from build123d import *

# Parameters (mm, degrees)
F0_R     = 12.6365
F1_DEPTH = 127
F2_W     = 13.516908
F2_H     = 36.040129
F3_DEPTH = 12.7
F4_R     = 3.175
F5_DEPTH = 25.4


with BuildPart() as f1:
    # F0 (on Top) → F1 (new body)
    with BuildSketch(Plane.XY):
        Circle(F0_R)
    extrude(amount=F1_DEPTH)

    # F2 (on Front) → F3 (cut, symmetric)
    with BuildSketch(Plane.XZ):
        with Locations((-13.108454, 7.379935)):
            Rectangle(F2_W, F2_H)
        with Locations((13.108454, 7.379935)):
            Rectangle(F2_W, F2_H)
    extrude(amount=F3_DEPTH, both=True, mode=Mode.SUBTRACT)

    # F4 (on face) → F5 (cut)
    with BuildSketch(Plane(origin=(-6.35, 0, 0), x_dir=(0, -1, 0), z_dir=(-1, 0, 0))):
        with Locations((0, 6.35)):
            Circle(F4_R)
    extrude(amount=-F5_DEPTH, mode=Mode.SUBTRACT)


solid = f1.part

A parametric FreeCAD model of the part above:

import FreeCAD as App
import Part
import Sketcher
Q = App.Units.Quantity

doc = App.newDocument("Part")
params = doc.addObject("Spreadsheet::Sheet", "Params")
for row, (alias, value) in enumerate([
    ("sketch1_diameter", "0.995 in"),
    ("pad1_length", "5 in"),
    ("pocket1_length", "1 in"),
    ("sketch3_diameter", "0.25 in"),
    ("pocket2_length", "1 in"),
], start=1):
    params.set(f"A{row}", alias)
    params.set(f"B{row}", "=" + value)
    params.setAlias(f"B{row}", alias)

body = doc.addObject("PartDesign::Body", "Body")

# Sketch on XY plane
sketch1 = body.newObject("Sketcher::SketchObject", "Sketch")
sketch1.AttachmentSupport = (doc.getObject("XY_Plane"), [""])
sketch1.MapMode = "FlatFace"
sketch1.addGeometry(Part.Circle(App.Vector(0, 0, 0), App.Vector(0, 0, 1), 13), False)
sketch1.addConstraint(Sketcher.Constraint("Coincident", 0, 3, -1, 1))
sketch1.addConstraint(Sketcher.Constraint("Diameter", 0, Q("0.995 in")))
sketch1.setExpression("Constraints[1]", "Params.sketch1_diameter")
pad1 = body.newObject("PartDesign::Pad", "Pad")
pad1.Profile = sketch1
pad1.setExpression("Length", "Params.pad1_length")

# Sketch on XZ plane
sketch2 = body.newObject("Sketcher::SketchObject", "Sketch001")
sketch2.AttachmentSupport = (doc.getObject("XZ_Plane"), [""])
sketch2.MapMode = "FlatFace"
sketch2.addGeometry(Part.LineSegment(App.Vector(-20, 25, 0), App.Vector(-20, -11, 0)), False)
sketch2.addGeometry(Part.LineSegment(App.Vector(-20, -11, 0), App.Vector(-6, -11, 0)), False)
sketch2.addGeometry(Part.LineSegment(App.Vector(-6, -11, 0), App.Vector(-6, 25, 0)), False)
sketch2.addGeometry(Part.LineSegment(App.Vector(-6, 25, 0), App.Vector(-20, 25, 0)), False)
sketch2.addGeometry(Part.LineSegment(App.Vector(6, 25, 0), App.Vector(6, -11, 0)), False)
sketch2.addGeometry(Part.LineSegment(App.Vector(6, -11, 0), App.Vector(20, -11, 0)), False)
sketch2.addGeometry(Part.LineSegment(App.Vector(20, -11, 0), App.Vector(20, 25, 0)), False)
sketch2.addGeometry(Part.LineSegment(App.Vector(20, 25, 0), App.Vector(6, 25, 0)), False)
sketch2.addConstraint(Sketcher.Constraint("Coincident", 0, 2, 1, 1))
sketch2.addConstraint(Sketcher.Constraint("Coincident", 1, 2, 2, 1))
sketch2.addConstraint(Sketcher.Constraint("Coincident", 2, 2, 3, 1))
sketch2.addConstraint(Sketcher.Constraint("Coincident", 3, 2, 0, 1))
sketch2.addConstraint(Sketcher.Constraint("Coincident", 4, 2, 5, 1))
sketch2.addConstraint(Sketcher.Constraint("Coincident", 5, 2, 6, 1))
sketch2.addConstraint(Sketcher.Constraint("Coincident", 6, 2, 7, 1))
sketch2.addConstraint(Sketcher.Constraint("Coincident", 7, 2, 4, 1))
sketch2.addConstraint(Sketcher.Constraint("Vertical", 0))
sketch2.addConstraint(Sketcher.Constraint("Horizontal", 1))
sketch2.addConstraint(Sketcher.Constraint("Vertical", 2))
sketch2.addConstraint(Sketcher.Constraint("Horizontal", 3))
sketch2.addConstraint(Sketcher.Constraint("Vertical", 4))
sketch2.addConstraint(Sketcher.Constraint("Horizontal", 5))
sketch2.addConstraint(Sketcher.Constraint("Vertical", 6))
sketch2.addConstraint(Sketcher.Constraint("Horizontal", 7))
sketch2.addConstraint(Sketcher.Constraint("Symmetric", 1, 2, 4, 2, -2))
sketch2.addConstraint(Sketcher.Constraint("Symmetric", 3, 2, 6, 2, -2))
sketch2.addConstraint(Sketcher.Constraint("DistanceY", -1, 1, 2, 2, Q("1 in")))
sketch2.addConstraint(Sketcher.Constraint("DistanceX", 1, 2, 4, 2, Q("0.5 in")))
sketch2.addConstraint(Sketcher.Constraint("DistanceY", 0, 2, 0, 1, Q("36.040129 mm")))
sketch2.addConstraint(Sketcher.Constraint("DistanceX", 1, 1, 1, 2, Q("13.516908 mm")))
pocket1 = body.newObject("PartDesign::Pocket", "Pocket")
pocket1.Profile = sketch2
pocket1.setExpression("Length", "Params.pocket1_length")
pocket1.Midplane = True

# Sketch on YZ plane
sketch3 = body.newObject("Sketcher::SketchObject", "Sketch002")
sketch3.AttachmentSupport = (doc.getObject("YZ_Plane"), [""])
sketch3.MapMode = "FlatFace"
sketch3.AttachmentOffset = App.Placement(App.Vector(0, 0, -0.25 * 25.4), App.Rotation())
sketch3.addGeometry(Part.Circle(App.Vector(0, 6.3, 0), App.Vector(0, 0, 1), 3.2), False)
sketch3.addConstraint(Sketcher.Constraint("PointOnObject", 0, 3, -2))
sketch3.addConstraint(Sketcher.Constraint("Diameter", 0, Q("0.25 in")))
sketch3.addConstraint(Sketcher.Constraint("DistanceY", -1, 1, 0, 3, Q("0.25 in")))
sketch3.setExpression("Constraints[1]", "Params.sketch3_diameter")
pocket2 = body.newObject("PartDesign::Pocket", "Pocket001")
pocket2.Profile = sketch3
pocket2.setExpression("Length", "Params.pocket2_length")
pocket2.Reversed = True

doc.recompute()
